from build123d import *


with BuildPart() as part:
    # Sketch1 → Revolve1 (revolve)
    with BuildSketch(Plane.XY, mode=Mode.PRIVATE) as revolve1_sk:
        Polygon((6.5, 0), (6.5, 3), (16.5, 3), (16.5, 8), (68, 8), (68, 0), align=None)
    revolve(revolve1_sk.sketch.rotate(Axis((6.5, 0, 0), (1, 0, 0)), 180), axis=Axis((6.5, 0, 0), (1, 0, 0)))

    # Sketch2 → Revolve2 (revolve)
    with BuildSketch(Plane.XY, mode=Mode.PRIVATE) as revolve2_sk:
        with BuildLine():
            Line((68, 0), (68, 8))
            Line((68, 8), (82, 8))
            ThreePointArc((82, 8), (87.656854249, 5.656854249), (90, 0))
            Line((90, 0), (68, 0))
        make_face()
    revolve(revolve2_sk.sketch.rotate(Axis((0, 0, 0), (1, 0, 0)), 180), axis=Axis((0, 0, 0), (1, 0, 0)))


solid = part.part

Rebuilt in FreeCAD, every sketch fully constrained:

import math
import FreeCAD as App
import Part
import Sketcher

V = App.Vector


def add_polygon(sketch, points):
    """Adds a closed chain of lines whose ends are joined by coincident constraints."""
    first, n = sketch.GeometryCount, len(points)
    for a, b in zip(points, points[1:] + points[:1]):
        sketch.addGeometry(Part.LineSegment(App.Vector(*a, 0), App.Vector(*b, 0)), False)
    for i in range(n):
        sketch.addConstraint(Sketcher.Constraint("Coincident", first + i, 2, first + (i + 1) % n, 1))

doc = App.newDocument("Part")
body = doc.addObject("PartDesign::Body", "Body")

# Sketch on XY plane
sketch1 = body.newObject("Sketcher::SketchObject", "Sketch")
sketch1.AttachmentSupport = (doc.getObject("XY_Plane"), [""])
sketch1.MapMode = "FlatFace"
add_polygon(sketch1, [(6.5, 3), (6.5, 0), (68, 0), (68, 8), (16.5, 8), (16.5, 3)])  # lines 0-5
sketch1.addConstraint([
    Sketcher.Constraint("Vertical", 0),
    Sketcher.Constraint("Horizontal", 1),
    Sketcher.Constraint("Vertical", 2),
    Sketcher.Constraint("Horizontal", 3),
    Sketcher.Constraint("Vertical", 4),
    Sketcher.Constraint("Horizontal", 5),
    Sketcher.Constraint("PointOnObject", 0, 2, -1),
    Sketcher.Constraint("DistanceX", 5, 2, 5, 1, 10.0),
    Sketcher.Constraint("DistanceY", 0, 2, 0, 1, 3.0),
    Sketcher.Constraint("DistanceY", 2, 1, 2, 2, 8.0),
    Sketcher.Constraint("DistanceX", 1, 1, 1, 2, 61.5),
    Sketcher.Constraint("DistanceX", -1, 1, 1, 2, 68.0),
])
revolution = body.newObject("PartDesign::Revolution", "Revolution")
revolution.Profile = sketch1
revolution.ReferenceAxis = (sketch1, ["H_Axis"])
revolution.Angle = 360

# Sketch on XY plane
sketch2 = body.newObject("Sketcher::SketchObject", "Sketch001")
sketch2.AttachmentSupport = (doc.getObject("XY_Plane"), [""])
sketch2.MapMode = "FlatFace"
sketch2.addGeometry([
    Part.LineSegment(V(68, 8, 0), V(68, 0, 0)),
    Part.LineSegment(V(68, 0, 0), V(90, 0, 0)),
    Part.ArcOfCircle(Part.Circle(V(82, 0, 0), V(0, 0, 1), 8), math.radians(0), math.radians(90)),
    Part.LineSegment(V(82, 8, 0), V(68, 8, 0)),
], False)
sketch2.addConstraint([
    Sketcher.Constraint("Coincident", 0, 2, 1, 1),
    Sketcher.Constraint("Coincident", 1, 2, 2, 1),
    Sketcher.Constraint("Tangent", 2, 2, 3, 1),
    Sketcher.Constraint("Coincident", 3, 2, 0, 1),
    Sketcher.Constraint("Vertical", 0),
    Sketcher.Constraint("Horizontal", 1),
    Sketcher.Constraint("Horizontal", 3),
    Sketcher.Constraint("PointOnObject", 2, 3, -1),
    Sketcher.Constraint("PointOnObject", 0, 2, -1),
    Sketcher.Constraint("Radius", 2, 8.0),
    Sketcher.Constraint("DistanceX", 1, 1, 1, 2, 22.0),
    Sketcher.Constraint("DistanceX", -1, 1, 2, 3, 82.0),
])
revolution2 = body.newObject("PartDesign::Revolution", "Revolution001")
revolution2.Profile = sketch2
revolution2.ReferenceAxis = (sketch2, ["H_Axis"])
revolution2.Angle = 360

doc.recompute()
